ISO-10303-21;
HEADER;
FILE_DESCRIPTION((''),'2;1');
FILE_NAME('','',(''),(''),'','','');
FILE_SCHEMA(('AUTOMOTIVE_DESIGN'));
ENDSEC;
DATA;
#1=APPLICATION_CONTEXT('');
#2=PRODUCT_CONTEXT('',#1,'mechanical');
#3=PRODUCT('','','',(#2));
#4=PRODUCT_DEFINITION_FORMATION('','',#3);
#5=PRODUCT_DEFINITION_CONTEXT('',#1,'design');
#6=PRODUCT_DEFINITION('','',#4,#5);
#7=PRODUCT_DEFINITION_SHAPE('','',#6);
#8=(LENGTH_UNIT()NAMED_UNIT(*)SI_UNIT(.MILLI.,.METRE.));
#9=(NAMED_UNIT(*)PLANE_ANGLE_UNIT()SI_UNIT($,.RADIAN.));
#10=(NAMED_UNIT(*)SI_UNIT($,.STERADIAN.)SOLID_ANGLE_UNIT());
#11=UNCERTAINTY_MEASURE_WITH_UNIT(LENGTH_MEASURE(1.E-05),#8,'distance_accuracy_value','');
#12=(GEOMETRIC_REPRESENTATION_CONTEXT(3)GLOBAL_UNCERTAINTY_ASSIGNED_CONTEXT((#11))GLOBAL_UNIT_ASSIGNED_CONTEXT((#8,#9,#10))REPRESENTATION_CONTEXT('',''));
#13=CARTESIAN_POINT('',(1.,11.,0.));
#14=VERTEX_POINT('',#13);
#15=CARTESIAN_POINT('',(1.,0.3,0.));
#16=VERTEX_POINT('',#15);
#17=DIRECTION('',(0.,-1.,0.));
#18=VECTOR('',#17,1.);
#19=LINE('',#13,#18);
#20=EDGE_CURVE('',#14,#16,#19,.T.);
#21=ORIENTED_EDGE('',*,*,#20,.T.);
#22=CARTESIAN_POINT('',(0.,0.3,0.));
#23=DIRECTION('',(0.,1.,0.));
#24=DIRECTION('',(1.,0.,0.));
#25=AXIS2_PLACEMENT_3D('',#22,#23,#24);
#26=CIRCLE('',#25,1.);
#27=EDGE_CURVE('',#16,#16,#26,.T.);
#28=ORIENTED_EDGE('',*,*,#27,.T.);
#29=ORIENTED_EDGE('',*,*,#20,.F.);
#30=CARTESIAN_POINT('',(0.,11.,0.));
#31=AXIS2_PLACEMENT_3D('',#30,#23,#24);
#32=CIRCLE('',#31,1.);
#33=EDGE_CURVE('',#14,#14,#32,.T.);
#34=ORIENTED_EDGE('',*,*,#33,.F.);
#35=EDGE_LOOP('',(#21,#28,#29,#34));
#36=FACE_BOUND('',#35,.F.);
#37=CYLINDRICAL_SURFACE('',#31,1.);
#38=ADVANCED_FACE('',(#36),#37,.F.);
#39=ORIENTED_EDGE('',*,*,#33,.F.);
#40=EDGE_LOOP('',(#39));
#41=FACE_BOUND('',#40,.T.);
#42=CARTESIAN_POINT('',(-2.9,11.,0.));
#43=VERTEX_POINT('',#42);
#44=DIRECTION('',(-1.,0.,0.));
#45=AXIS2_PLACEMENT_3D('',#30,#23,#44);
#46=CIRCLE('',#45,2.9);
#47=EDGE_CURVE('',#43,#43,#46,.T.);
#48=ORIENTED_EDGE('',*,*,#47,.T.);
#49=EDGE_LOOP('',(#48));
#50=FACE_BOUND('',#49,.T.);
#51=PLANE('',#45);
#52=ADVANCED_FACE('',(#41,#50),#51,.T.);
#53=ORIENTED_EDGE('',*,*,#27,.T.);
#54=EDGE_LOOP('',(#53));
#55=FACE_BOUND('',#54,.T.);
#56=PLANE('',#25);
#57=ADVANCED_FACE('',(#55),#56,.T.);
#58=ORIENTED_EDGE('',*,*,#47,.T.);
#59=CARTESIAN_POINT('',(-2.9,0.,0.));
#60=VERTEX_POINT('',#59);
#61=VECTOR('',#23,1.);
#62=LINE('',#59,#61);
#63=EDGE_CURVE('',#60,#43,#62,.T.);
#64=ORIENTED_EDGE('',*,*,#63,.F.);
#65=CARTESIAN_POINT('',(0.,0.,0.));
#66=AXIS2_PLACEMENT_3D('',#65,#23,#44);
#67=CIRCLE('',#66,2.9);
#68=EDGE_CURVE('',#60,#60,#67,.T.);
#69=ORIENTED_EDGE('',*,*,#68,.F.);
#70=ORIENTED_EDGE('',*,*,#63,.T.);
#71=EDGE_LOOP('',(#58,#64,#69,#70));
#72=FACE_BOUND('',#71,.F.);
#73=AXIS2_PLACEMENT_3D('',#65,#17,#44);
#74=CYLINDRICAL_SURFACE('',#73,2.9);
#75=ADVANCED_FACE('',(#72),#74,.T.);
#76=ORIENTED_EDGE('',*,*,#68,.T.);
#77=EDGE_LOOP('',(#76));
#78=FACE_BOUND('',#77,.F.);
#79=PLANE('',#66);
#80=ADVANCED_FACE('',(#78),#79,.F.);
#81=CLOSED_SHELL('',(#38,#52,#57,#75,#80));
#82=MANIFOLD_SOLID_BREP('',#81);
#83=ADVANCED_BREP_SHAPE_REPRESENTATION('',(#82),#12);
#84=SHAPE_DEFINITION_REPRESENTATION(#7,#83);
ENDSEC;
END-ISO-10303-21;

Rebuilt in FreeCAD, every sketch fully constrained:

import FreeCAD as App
import Part
import Sketcher

V = App.Vector

doc = App.newDocument("Part")
params = doc.addObject("Spreadsheet::Sheet", "Params")
for row, (alias, value) in enumerate([
    ("sketch1_diameter", "5.8 mm"),
    ("pad1_length", "11 mm"),
    ("sketch2_diameter", "2 mm"),
    ("pocket1_length", "10.7 mm"),
], start=1):
    params.set(f"A{row}", alias)
    params.set(f"B{row}", "=" + value)
    params.setAlias(f"B{row}", alias)

body = doc.addObject("PartDesign::Body", "Body")

# Sketch on XZ plane
sketch1 = body.newObject("Sketcher::SketchObject", "Sketch")
sketch1.AttachmentSupport = (doc.getObject("XZ_Plane"), [""])
sketch1.MapMode = "FlatFace"
sketch1.addGeometry(Part.Circle(V(0, 0, 0), V(0, 0, 1), 2.9), False)
sketch1.addConstraint(Sketcher.Constraint("Coincident", 0, 3, -1, 1))
sketch1.addConstraint(Sketcher.Constraint("Diameter", 0, 5.8))
sketch1.setExpression("Constraints[1]", "Params.sketch1_diameter")
pad1 = body.newObject("PartDesign::Pad", "Pad")
pad1.Profile = sketch1
pad1.setExpression("Length", "Params.pad1_length")
pad1.Reversed = True

# Sketch on XZ plane
sketch2 = body.newObject("Sketcher::SketchObject", "Sketch001")
sketch2.AttachmentSupport = (doc.getObject("XZ_Plane"), [""])
sketch2.MapMode = "FlatFace"
sketch2.AttachmentOffset = App.Placement(V(0, 0, -11), App.Rotation())
sketch2.addGeometry(Part.Circle(V(0, 0, 0), V(0, 0, 1), 1), False)
sketch2.addConstraint(Sketcher.Constraint("Coincident", 0, 3, -1, 1))
sketch2.addConstraint(Sketcher.Constraint("Diameter", 0, 2.0))
sketch2.setExpression("Constraints[1]", "Params.sketch2_diameter")
pocket1 = body.newObject("PartDesign::Pocket", "Pocket")
pocket1.Profile = sketch2
pocket1.setExpression("Length", "Params.pocket1_length")
pocket1.Reversed = True

doc.recompute()
